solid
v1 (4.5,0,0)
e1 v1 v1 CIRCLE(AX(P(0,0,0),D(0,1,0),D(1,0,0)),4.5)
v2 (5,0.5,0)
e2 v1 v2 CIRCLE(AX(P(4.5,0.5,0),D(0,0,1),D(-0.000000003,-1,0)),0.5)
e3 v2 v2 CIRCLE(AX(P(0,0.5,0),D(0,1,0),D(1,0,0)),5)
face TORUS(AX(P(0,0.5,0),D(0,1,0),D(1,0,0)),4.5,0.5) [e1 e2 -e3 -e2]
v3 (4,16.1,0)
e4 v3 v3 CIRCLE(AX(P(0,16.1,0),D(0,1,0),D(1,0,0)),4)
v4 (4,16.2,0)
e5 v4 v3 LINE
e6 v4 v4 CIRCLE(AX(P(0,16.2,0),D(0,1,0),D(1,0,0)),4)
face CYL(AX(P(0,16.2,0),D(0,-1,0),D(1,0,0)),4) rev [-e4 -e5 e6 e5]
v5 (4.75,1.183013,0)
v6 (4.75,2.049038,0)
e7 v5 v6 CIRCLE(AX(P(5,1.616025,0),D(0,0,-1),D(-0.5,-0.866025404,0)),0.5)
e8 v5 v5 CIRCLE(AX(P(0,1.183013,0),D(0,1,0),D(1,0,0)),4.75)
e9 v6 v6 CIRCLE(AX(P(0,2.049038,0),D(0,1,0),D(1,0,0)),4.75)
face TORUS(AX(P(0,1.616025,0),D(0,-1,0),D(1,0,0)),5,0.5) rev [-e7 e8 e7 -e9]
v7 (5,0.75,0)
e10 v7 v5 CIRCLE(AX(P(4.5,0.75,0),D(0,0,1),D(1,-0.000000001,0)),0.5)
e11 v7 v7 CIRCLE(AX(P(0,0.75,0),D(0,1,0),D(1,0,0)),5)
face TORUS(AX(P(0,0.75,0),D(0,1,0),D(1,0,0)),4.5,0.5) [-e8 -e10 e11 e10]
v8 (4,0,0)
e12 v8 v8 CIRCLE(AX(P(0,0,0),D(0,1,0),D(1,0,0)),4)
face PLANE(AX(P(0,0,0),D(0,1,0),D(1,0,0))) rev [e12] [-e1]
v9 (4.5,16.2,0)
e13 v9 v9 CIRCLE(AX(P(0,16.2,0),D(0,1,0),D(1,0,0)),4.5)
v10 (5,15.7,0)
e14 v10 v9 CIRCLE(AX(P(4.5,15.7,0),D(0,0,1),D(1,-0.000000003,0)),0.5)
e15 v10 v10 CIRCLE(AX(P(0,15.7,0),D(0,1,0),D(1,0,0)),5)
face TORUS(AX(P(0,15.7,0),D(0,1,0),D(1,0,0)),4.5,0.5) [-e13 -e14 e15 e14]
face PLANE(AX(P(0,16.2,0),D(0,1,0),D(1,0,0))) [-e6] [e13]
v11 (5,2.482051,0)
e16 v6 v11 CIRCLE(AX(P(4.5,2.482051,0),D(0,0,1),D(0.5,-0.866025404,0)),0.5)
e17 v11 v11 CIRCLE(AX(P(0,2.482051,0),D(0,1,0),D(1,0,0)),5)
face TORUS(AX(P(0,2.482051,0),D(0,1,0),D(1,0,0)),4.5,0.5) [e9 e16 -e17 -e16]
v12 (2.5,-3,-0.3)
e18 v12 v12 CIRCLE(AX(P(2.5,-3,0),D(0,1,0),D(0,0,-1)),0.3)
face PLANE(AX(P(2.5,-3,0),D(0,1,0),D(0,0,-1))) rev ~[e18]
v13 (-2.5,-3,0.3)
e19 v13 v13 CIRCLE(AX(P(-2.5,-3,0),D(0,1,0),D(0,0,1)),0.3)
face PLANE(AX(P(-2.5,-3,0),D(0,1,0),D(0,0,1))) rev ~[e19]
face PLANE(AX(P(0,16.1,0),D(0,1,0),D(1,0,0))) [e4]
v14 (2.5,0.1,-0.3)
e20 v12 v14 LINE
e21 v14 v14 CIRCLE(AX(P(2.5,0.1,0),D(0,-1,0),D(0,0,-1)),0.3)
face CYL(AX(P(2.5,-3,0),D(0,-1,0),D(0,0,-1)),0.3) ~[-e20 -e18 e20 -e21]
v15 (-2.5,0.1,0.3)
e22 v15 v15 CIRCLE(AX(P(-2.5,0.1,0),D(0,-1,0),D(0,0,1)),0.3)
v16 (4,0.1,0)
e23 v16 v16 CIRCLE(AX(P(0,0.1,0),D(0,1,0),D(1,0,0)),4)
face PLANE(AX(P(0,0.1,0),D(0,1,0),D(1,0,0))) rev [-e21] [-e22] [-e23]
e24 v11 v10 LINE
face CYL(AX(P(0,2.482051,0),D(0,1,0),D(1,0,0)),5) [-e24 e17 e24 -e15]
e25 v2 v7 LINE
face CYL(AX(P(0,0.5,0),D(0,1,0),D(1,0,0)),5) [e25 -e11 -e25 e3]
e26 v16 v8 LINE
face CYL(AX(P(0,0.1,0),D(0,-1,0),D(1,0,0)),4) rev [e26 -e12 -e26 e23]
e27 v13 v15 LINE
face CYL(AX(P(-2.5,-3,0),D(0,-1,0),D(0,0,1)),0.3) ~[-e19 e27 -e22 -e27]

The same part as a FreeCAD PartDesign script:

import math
import FreeCAD as App
import Part
import Sketcher
from FreeCAD import Vector

doc = App.newDocument("Part")
body = doc.addObject("PartDesign::Body", "Body")

sketch1 = body.newObject("Sketcher::SketchObject", "Sketch")
sketch1.AttachmentSupport = (doc.getObject("XZ_Plane"), [""])
sketch1.MapMode = "FlatFace"
sketch1.addGeometry(Part.Circle(Vector(-2.5, 0, 0), Vector(0, 0, 1), 0.3), False)
sketch1.addConstraint([
    Sketcher.Constraint("PointOnObject", 0, 3, -1),
    Sketcher.Constraint("Diameter", 0, 0.6),
    Sketcher.Constraint("DistanceX", 0, 3, -1, 1, 2.5),
])
pad1 = body.newObject("PartDesign::Pad", "Pad")
pad1.Profile = sketch1
pad1.Type = "TwoLengths"
pad1.Length = 1
pad1.Length2 = 3
pad1.Reversed = True
body2 = doc.addObject("PartDesign::Body", "Body001")

sketch2 = body2.newObject("Sketcher::SketchObject", "Sketch001")
sketch2.AttachmentSupport = (doc.getObject("XZ_Plane001"), [""])
sketch2.MapMode = "FlatFace"
sketch2.addGeometry(Part.Circle(Vector(2.5, 0, 0), Vector(0, 0, 1), 0.3), False)
sketch2.addConstraint([
    Sketcher.Constraint("PointOnObject", 0, 3, -1),
    Sketcher.Constraint("Diameter", 0, 0.6),
    Sketcher.Constraint("DistanceX", -1, 1, 0, 3, 2.5),
])
pad2 = body2.newObject("PartDesign::Pad", "Pad001")
pad2.Profile = sketch2
pad2.Type = "TwoLengths"
pad2.Length = 1
pad2.Length2 = 3
pad2.Reversed = True
body.AllowCompound = True
doc.recompute()

boolean = body.newObject("PartDesign::Boolean", "Boolean")
boolean.Type = "Fuse"
boolean.addObjects([body2])

sketch3 = body.newObject("Sketcher::SketchObject", "Sketch002")
sketch3.AttachmentSupport = (doc.getObject("XY_Plane"), [""])
sketch3.MapMode = "FlatFace"
sketch3.addGeometry([
    Part.LineSegment(Vector(5, 0.5, 0), Vector(5, 0.75, 0)),
    Part.ArcOfCircle(Part.Circle(Vector(4.5, 0.75, 0), Vector(0, 0, 1), 0.5), math.radians(0), math.radians(60)),
    Part.ArcOfCircle(Part.Circle(Vector(5, 1.62, 0), Vector(0, 0, 1), 0.5), math.radians(120), math.radians(240)),
    Part.ArcOfCircle(Part.Circle(Vector(4.5, 2.48, 0), Vector(0, 0, 1), 0.5), math.radians(-60), math.radians(0)),
    Part.LineSegment(Vector(5, 2.48, 0), Vector(5, 15.7, 0)),
    Part.ArcOfCircle(Part.Circle(Vector(4.5, 15.7, 0), Vector(0, 0, 1), 0.5), math.radians(0), math.radians(90)),
    Part.LineSegment(Vector(4.5, 16.2, 0), Vector(4, 16.2, 0)),
    Part.LineSegment(Vector(4, 16.2, 0), Vector(4, 16.1, 0)),
    Part.LineSegment(Vector(4, 16.1, 0), Vector(0, 16.1, 0)),
    Part.LineSegment(Vector(0, 16.1, 0), Vector(0, 0.1, 0)),
    Part.LineSegment(Vector(0, 0.1, 0), Vector(4, 0.1, 0)),
    Part.LineSegment(Vector(4, 0.1, 0), Vector(4, 0, 0)),
    Part.LineSegment(Vector(4, 0, 0), Vector(4.5, 0, 0)),
    Part.ArcOfCircle(Part.Circle(Vector(4.5, 0.5, 0), Vector(0, 0, 1), 0.5), math.radians(-90), math.radians(0)),
], False)
sketch3.addConstraint([
    Sketcher.Constraint("Tangent", 0, 2, 1, 1),
    Sketcher.Constraint("Tangent", 1, 2, 2, 2),
    Sketcher.Constraint("Tangent", 2, 1, 3, 1),
    Sketcher.Constraint("Tangent", 3, 2, 4, 1),
    Sketcher.Constraint("Tangent", 4, 2, 5, 1),
    Sketcher.Constraint("Tangent", 5, 2, 6, 1),
    Sketcher.Constraint("Coincident", 6, 2, 7, 1),
    Sketcher.Constraint("Coincident", 7, 2, 8, 1),
    Sketcher.Constraint("Coincident", 8, 2, 9, 1),
    Sketcher.Constraint("Coincident", 9, 2, 10, 1),
    Sketcher.Constraint("Coincident", 10, 2, 11, 1),
    Sketcher.Constraint("Coincident", 11, 2, 12, 1),
    Sketcher.Constraint("Tangent", 12, 2, 13, 1),
    Sketcher.Constraint("Tangent", 13, 2, 0, 1),
    Sketcher.Constraint("Vertical", 0),
    Sketcher.Constraint("Vertical", 4),
    Sketcher.Constraint("Horizontal", 6),
    Sketcher.Constraint("Vertical", 7),
    Sketcher.Constraint("Horizontal", 8),
    Sketcher.Constraint("Vertical", 9),
    Sketcher.Constraint("Horizontal", 10),
    Sketcher.Constraint("Vertical", 11),
    Sketcher.Constraint("Horizontal", 12),
    Sketcher.Constraint("Equal", 1, 2),
    Sketcher.Constraint("Equal", 2, 3),
    Sketcher.Constraint("Equal", 3, 5),
    Sketcher.Constraint("Equal", 5, 13),
    Sketcher.Constraint("PointOnObject", 8, 2, -2),
    Sketcher.Constraint("PointOnObject", 11, 2, -1),
    Sketcher.Constraint("Vertical", 1, 3, 3, 3),
    Sketcher.Constraint("Vertical", 2, 3, 0, 2),
    Sketcher.Constraint("Vertical", 7, 2, 10, 2),
    Sketcher.Constraint("Equal", 7, 11),
    Sketcher.Constraint("Radius", 1, 0.5),
    Sketcher.Constraint("DistanceX", 8, 2, 8, 1, 4.0),
    Sketcher.Constraint("DistanceY", 9, 2, 9, 1, 16.0),
    Sketcher.Constraint("DistanceX", 6, 2, 6, 1, 0.5),
    Sketcher.Constraint("DistanceY", 7, 2, 7, 1, 0.1),
    Sketcher.Constraint("DistanceY", 0, 1, 0, 2, 0.25),
])
revolution = body.newObject("PartDesign::Revolution", "Revolution")
revolution.Profile = sketch3
revolution.ReferenceAxis = (sketch3, ["V_Axis"])
revolution.Angle = 360

doc.recompute()
